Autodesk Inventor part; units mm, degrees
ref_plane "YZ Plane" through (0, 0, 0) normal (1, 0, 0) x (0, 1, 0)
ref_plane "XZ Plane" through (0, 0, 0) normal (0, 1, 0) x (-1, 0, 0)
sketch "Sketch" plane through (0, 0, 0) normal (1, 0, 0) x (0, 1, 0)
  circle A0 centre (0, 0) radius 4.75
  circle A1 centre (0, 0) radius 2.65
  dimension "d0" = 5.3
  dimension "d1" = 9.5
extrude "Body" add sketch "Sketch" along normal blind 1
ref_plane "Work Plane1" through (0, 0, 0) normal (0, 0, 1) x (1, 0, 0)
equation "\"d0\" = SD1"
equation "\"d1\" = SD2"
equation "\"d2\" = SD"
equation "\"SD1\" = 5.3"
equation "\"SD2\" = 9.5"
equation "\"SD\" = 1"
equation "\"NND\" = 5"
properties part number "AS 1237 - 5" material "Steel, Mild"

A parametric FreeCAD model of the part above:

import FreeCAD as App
import Part
import Sketcher

doc = App.newDocument("Part")
body = doc.addObject("PartDesign::Body", "Body")

# Sketch on YZ plane
sketch1 = doc.addObject("Sketcher::SketchObject", "Sketch")
body.addObject(sketch1)
sketch1.AttachmentSupport = (doc.YZ_Plane, [""])
sketch1.MapMode = "FlatFace"
sketch1.addGeometry(Part.Circle(App.Vector(0, 0, 0), App.Vector(0, 0, 1), 4.8), False)
sketch1.addGeometry(Part.Circle(App.Vector(0, 0, 0), App.Vector(0, 0, 1), 2.6), False)
sketch1.addConstraint(Sketcher.Constraint("Coincident", 0, 3, -1, 1))
sketch1.addConstraint(Sketcher.Constraint("Coincident", 1, 3, -1, 1))
sketch1.addConstraint(Sketcher.Constraint("Diameter", 0, 9.5))
sketch1.addConstraint(Sketcher.Constraint("Diameter", 1, 5.3))
pad1 = doc.addObject("PartDesign::Pad", "Pad")
body.addObject(pad1)
pad1.Profile = sketch1
pad1.Length = 1

doc.recompute()
